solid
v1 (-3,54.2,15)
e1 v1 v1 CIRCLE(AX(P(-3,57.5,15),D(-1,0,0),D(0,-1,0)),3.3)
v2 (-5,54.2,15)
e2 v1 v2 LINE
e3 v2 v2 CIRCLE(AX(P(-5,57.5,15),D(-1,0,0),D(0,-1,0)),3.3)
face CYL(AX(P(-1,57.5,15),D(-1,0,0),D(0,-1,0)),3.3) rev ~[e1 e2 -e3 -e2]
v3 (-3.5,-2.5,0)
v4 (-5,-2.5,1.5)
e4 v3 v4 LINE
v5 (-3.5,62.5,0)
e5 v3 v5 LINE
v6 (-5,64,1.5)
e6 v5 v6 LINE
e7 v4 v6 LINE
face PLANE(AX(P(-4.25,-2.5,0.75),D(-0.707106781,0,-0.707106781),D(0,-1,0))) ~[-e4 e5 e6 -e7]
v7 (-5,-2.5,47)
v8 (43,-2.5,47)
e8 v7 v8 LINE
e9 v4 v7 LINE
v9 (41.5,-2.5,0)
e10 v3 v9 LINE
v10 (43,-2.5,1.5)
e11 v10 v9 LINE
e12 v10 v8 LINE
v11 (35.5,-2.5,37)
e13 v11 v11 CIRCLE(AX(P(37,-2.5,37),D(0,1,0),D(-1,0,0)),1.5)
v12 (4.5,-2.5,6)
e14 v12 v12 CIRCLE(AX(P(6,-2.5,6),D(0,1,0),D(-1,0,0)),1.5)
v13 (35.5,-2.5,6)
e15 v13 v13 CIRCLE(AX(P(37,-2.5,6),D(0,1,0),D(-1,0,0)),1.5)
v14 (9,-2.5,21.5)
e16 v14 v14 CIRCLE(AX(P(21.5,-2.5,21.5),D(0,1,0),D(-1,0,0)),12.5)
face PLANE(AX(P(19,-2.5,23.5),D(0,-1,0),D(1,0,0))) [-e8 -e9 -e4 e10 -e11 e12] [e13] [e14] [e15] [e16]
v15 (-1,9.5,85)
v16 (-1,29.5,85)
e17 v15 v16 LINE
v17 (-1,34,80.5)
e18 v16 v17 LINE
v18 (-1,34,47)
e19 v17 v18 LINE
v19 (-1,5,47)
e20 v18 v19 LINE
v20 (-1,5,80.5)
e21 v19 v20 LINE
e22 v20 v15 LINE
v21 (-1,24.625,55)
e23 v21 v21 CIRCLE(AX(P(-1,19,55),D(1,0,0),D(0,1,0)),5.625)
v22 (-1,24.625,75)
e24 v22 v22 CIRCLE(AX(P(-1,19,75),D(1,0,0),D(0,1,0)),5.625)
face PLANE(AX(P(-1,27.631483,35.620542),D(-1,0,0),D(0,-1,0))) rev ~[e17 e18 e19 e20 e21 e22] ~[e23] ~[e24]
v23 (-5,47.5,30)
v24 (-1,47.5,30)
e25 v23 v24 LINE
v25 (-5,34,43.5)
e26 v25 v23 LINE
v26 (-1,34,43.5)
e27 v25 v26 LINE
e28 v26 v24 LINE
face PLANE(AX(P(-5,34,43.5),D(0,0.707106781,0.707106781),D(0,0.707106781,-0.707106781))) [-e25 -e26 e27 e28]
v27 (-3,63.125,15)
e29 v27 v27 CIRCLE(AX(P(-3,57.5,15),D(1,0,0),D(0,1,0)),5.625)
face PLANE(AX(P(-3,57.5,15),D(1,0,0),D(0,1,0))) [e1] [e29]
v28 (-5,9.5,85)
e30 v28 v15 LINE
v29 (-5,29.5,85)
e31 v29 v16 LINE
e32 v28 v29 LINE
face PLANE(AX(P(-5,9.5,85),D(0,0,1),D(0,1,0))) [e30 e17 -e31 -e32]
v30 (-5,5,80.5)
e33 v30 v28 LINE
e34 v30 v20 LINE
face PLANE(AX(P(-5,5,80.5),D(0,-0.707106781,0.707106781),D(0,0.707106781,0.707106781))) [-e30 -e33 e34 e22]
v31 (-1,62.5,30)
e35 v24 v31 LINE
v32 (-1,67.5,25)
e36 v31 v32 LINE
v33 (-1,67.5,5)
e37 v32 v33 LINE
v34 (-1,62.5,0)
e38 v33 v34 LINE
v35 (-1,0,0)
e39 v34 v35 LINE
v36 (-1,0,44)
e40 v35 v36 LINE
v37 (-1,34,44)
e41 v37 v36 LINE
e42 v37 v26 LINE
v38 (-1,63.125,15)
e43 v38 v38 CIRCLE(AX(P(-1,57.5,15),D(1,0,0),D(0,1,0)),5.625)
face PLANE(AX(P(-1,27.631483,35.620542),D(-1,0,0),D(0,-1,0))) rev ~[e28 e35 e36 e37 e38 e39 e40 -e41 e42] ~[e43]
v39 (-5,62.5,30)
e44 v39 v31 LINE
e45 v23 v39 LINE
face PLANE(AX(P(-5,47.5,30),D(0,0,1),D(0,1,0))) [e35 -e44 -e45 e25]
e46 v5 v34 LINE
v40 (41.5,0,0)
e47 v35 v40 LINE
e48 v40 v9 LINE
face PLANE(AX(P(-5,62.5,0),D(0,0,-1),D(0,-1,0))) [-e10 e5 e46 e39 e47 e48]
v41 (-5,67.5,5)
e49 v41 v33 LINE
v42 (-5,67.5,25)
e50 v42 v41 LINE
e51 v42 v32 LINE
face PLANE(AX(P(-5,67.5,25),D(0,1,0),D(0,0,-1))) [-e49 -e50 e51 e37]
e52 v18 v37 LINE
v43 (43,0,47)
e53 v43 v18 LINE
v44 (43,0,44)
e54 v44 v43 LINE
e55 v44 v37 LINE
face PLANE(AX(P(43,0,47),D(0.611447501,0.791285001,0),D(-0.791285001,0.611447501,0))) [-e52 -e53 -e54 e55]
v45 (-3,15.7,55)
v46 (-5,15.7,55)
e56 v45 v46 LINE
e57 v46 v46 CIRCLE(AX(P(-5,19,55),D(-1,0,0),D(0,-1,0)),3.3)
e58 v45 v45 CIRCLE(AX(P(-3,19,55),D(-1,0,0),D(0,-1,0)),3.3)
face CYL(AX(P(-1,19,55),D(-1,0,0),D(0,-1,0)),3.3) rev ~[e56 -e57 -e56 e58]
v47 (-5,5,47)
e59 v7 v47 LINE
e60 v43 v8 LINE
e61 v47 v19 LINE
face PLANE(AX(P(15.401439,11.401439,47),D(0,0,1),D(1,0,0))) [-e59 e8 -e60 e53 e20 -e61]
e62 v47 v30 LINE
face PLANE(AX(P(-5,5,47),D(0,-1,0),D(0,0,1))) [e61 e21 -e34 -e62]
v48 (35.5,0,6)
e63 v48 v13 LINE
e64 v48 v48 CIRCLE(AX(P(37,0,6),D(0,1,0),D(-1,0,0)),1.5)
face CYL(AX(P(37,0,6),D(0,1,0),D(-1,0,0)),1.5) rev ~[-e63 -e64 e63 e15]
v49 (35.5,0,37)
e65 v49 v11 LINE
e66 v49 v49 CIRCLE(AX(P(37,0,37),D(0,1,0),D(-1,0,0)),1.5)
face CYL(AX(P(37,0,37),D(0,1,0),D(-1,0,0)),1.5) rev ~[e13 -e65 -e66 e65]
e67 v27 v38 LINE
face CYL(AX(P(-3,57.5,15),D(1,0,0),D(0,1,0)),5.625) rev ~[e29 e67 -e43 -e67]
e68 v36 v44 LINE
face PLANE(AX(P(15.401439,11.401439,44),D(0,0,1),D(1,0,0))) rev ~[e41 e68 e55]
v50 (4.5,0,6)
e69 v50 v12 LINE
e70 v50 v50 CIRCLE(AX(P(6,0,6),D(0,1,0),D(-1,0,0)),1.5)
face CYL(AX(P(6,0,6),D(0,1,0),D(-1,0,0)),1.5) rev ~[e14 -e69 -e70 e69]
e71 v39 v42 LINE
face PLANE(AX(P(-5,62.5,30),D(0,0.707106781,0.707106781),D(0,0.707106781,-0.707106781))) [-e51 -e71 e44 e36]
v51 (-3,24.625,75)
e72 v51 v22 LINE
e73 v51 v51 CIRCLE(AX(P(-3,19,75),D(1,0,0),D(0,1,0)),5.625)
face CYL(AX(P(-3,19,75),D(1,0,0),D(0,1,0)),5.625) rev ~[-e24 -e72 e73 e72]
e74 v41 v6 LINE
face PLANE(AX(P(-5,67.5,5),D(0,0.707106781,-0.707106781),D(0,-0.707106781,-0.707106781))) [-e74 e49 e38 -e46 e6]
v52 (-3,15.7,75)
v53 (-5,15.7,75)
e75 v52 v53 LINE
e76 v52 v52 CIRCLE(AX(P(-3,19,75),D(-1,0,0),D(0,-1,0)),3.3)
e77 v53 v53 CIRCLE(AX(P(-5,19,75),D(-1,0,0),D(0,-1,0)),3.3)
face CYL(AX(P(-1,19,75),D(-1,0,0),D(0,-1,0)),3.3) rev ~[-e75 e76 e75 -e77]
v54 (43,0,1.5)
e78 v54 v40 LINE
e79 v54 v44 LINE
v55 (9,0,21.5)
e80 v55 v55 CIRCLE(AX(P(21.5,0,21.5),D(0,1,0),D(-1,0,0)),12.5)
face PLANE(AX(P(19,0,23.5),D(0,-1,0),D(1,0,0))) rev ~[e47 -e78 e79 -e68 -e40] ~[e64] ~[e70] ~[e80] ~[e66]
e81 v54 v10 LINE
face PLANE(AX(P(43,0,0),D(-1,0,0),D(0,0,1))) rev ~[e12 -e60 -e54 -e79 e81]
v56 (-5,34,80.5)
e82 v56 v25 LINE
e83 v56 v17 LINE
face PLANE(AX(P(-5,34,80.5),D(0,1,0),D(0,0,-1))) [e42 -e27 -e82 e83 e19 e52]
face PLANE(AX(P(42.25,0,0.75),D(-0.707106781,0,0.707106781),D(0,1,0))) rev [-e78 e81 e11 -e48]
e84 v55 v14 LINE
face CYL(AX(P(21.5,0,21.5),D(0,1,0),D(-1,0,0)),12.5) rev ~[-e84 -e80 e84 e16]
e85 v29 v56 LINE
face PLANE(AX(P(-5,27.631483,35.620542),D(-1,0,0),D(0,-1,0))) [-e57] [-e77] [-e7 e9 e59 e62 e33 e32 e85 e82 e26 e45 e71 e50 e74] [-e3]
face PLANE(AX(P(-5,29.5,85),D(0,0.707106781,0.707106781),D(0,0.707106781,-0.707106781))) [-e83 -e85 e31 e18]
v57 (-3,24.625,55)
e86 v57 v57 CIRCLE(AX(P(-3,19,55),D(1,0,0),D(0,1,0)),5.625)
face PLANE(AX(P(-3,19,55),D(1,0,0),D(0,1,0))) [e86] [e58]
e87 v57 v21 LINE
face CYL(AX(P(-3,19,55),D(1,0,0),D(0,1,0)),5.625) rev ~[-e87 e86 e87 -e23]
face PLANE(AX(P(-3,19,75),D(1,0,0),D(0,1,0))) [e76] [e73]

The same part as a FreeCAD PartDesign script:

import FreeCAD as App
import Part
import Sketcher


def edges_at(feature, points):
    """Names of the edges that pass closest to the given points."""
    edges = feature.Shape.Edges
    near = lambda p: min(range(len(edges)), key=lambda i: edges[i].distToShape(Part.Vertex(*p))[0])
    return sorted({f"Edge{near(p) + 1}" for p in points})


def add_polygon(sketch, points):
    """Adds a closed chain of lines whose ends are joined by coincident constraints."""
    first, n = sketch.GeometryCount, len(points)
    for a, b in zip(points, points[1:] + points[:1]):
        sketch.addGeometry(Part.LineSegment(App.Vector(*a, 0), App.Vector(*b, 0)), False)
    for i in range(n):
        sketch.addConstraint(Sketcher.Constraint("Coincident", first + i, 2, first + (i + 1) % n, 1))

doc = App.newDocument("Part")
body = doc.addObject("PartDesign::Body", "Body")

# Sketch on XZ plane
sketch1 = body.newObject("Sketcher::SketchObject", "Sketch")
sketch1.AttachmentSupport = (doc.getObject("XZ_Plane"), [""])
sketch1.MapMode = "FlatFace"
add_polygon(sketch1, [(-5, 47), (-5, 0), (43, 0), (43, 47)])  # lines 0-3
sketch1.addConstraint([
    Sketcher.Constraint("Vertical", 0),
    Sketcher.Constraint("Horizontal", 1),
    Sketcher.Constraint("Vertical", 2),
    Sketcher.Constraint("Horizontal", 3),
    Sketcher.Constraint("PointOnObject", 0, 2, -1),
    Sketcher.Constraint("DistanceX", 1, 1, 1, 2, 48.0),
    Sketcher.Constraint("DistanceY", 0, 2, 0, 1, 47.0),
    Sketcher.Constraint("DistanceX", 0, 2, -1, 1, 5.0),
])
pad1 = body.newObject("PartDesign::Pad", "Pad")
pad1.Profile = sketch1
pad1.Length = 2.5

# Sketch on YZ plane
sketch2 = body.newObject("Sketcher::SketchObject", "Sketch001")
sketch2.AttachmentSupport = (doc.getObject("YZ_Plane"), [""])
sketch2.MapMode = "FlatFace"
sketch2.AttachmentOffset = App.Placement(App.Vector(0, 0, -5), App.Rotation())
add_polygon(sketch2, [(62.5, 0), (0, 0), (0, 47), (5, 47), (5, 80.5), (9.5, 85), (29.5, 85), (34, 80.5), (34, 43.5), (47.5, 30), (62.5, 30), (67.5, 25), (67.5, 5)])  # lines 0-12
sketch2.addConstraint([
    Sketcher.Constraint("Horizontal", 0),
    Sketcher.Constraint("Vertical", 1),
    Sketcher.Constraint("Horizontal", 2),
    Sketcher.Constraint("Vertical", 3),
    Sketcher.Constraint("Horizontal", 5),
    Sketcher.Constraint("Vertical", 7),
    Sketcher.Constraint("Horizontal", 9),
    Sketcher.Constraint("Vertical", 11),
    Sketcher.Constraint("Coincident", 0, 2, -1, 1),
    Sketcher.Constraint("Perpendicular", 4, 6),
    Sketcher.Constraint("Parallel", 6, 8),
    Sketcher.Constraint("Parallel", 8, 10),
    Sketcher.Constraint("Perpendicular", 10, 12),
    Sketcher.Constraint("Horizontal", 3, 2, 6, 2),
    Sketcher.Constraint("Vertical", 9, 2, 12, 2),
    Sketcher.Constraint("Equal", 5, 11),
    Sketcher.Constraint("Equal", 4, 6),
    Sketcher.Constraint("DistanceX", 2, 1, 2, 2, 5.0),
    Sketcher.Constraint("DistanceX", 5, 1, 5, 2, 20.0),
    Sketcher.Constraint("DistanceX", 9, 1, 9, 2, 15.0),
    Sketcher.Constraint("DistanceY", 1, 1, 1, 2, 47.0),
    Sketcher.Constraint("DistanceY", 7, 2, 7, 1, 37.0),
    Sketcher.Constraint("DistanceX", 0, 2, 0, 1, 62.5),
    Sketcher.Constraint("DistanceY", 3, 1, 3, 2, 33.5),
    Sketcher.Constraint("DistanceY", -1, 1, 4, 2, 85.0),
])
pad2 = body.newObject("PartDesign::Pad", "Pad001")
pad2.Profile = sketch2
pad2.Length = 4

# Sketch on XY plane
sketch3 = body.newObject("Sketcher::SketchObject", "Sketch002")
sketch3.AttachmentSupport = (doc.getObject("XY_Plane"), [""])
sketch3.MapMode = "FlatFace"
sketch3.AttachmentOffset = App.Placement(App.Vector(0, 0, 47), App.Rotation())
add_polygon(sketch3, [(-1, 0), (43, 0), (-1, 34)])  # lines 0-2
sketch3.addConstraint([
    Sketcher.Constraint("Horizontal", 0),
    Sketcher.Constraint("Vertical", 2),
    Sketcher.Constraint("PointOnObject", 0, 2, -1),
    Sketcher.Constraint("DistanceX", 0, 1, 0, 2, 44.0),
    Sketcher.Constraint("DistanceY", 2, 2, 2, 1, 34.0),
    Sketcher.Constraint("DistanceX", -1, 1, 0, 2, 43.0),
])
pad3 = body.newObject("PartDesign::Pad", "Pad002")
pad3.Profile = sketch3
pad3.Length = 3
pad3.Reversed = True

# Sketch on YZ plane
sketch4 = body.newObject("Sketcher::SketchObject", "Sketch003")
sketch4.AttachmentSupport = (doc.getObject("YZ_Plane"), [""])
sketch4.MapMode = "FlatFace"
sketch4.AttachmentOffset = App.Placement(App.Vector(0, 0, -1), App.Rotation())
sketch4.addGeometry([
    Part.Circle(App.Vector(19, 75, 0), App.Vector(0, 0, 1), 3.3),
    Part.Circle(App.Vector(19, 55, 0), App.Vector(0, 0, 1), 3.3),
    Part.Circle(App.Vector(57.5, 15, 0), App.Vector(0, 0, 1), 3.3),
], False)
sketch4.addConstraint([
    Sketcher.Constraint("Equal", 0, 1),
    Sketcher.Constraint("Equal", 1, 2),
    Sketcher.Constraint("Vertical", 0, 3, 1, 3),
    Sketcher.Constraint("Diameter", 0, 6.6),
    Sketcher.Constraint("DistanceX", -1, 1, 0, 3, 19.0),
    Sketcher.Constraint("DistanceY", -1, 1, 0, 3, 75.0),
    Sketcher.Constraint("DistanceY", -1, 1, 1, 3, 55.0),
    Sketcher.Constraint("DistanceY", -1, 1, 2, 3, 15.0),
    Sketcher.Constraint("DistanceX", -1, 1, 2, 3, 57.5),
])
doc.recompute()
hole = body.newObject("PartDesign::Hole", "Hole")
hole.Profile = sketch4
hole.ThreadType = "None"
hole.Diameter = 6.6
hole.DepthType = "ThroughAll"
hole.HoleCutType = "Counterbore"
hole.HoleCutDiameter = 11.25
hole.HoleCutDepth = 2

# Sketch on XZ plane
sketch5 = body.newObject("Sketcher::SketchObject", "Sketch004")
sketch5.AttachmentSupport = (doc.getObject("XZ_Plane"), [""])
sketch5.MapMode = "FlatFace"
sketch5.addGeometry([
    Part.Circle(App.Vector(37, 37, 0), App.Vector(0, 0, 1), 1.5),
    Part.Circle(App.Vector(37, 6, 0), App.Vector(0, 0, 1), 1.5),
    Part.Circle(App.Vector(6, 6, 0), App.Vector(0, 0, 1), 1.5),
    Part.Circle(App.Vector(21.5, 21.5, 0), App.Vector(0, 0, 1), 12.5),
], False)
sketch5.addConstraint([
    Sketcher.Constraint("Equal", 0, 1),
    Sketcher.Constraint("Equal", 1, 2),
    Sketcher.Constraint("Horizontal", 1, 3, 2, 3),
    Sketcher.Constraint("Vertical", 0, 3, 1, 3),
    Sketcher.Constraint("Diameter", 0, 3.0),
    Sketcher.Constraint("Diameter", 3, 25.0),
    Sketcher.Constraint("DistanceX", -1, 1, 0, 3, 37.0),
    Sketcher.Constraint("DistanceY", -1, 1, 0, 3, 37.0),
    Sketcher.Constraint("DistanceY", -1, 1, 1, 3, 6.0),
    Sketcher.Constraint("DistanceX", -1, 1, 2, 3, 6.0),
    Sketcher.Constraint("DistanceX", -1, 1, 3, 3, 21.5),
    Sketcher.Constraint("DistanceY", -1, 1, 3, 3, 21.5),
])
pocket1 = body.newObject("PartDesign::Pocket", "Pocket")
pocket1.Profile = sketch5
pocket1.Type = "ThroughAll"
pocket1.Reversed = True
doc.recompute()

chamfer = body.newObject("PartDesign::Chamfer", "Chamfer")
chamfer.Base = (pocket1, edges_at(pocket1, [(43, -1.25, 0), (-5, 30, 0)]))
chamfer.Size = 1.5

doc.recompute()
